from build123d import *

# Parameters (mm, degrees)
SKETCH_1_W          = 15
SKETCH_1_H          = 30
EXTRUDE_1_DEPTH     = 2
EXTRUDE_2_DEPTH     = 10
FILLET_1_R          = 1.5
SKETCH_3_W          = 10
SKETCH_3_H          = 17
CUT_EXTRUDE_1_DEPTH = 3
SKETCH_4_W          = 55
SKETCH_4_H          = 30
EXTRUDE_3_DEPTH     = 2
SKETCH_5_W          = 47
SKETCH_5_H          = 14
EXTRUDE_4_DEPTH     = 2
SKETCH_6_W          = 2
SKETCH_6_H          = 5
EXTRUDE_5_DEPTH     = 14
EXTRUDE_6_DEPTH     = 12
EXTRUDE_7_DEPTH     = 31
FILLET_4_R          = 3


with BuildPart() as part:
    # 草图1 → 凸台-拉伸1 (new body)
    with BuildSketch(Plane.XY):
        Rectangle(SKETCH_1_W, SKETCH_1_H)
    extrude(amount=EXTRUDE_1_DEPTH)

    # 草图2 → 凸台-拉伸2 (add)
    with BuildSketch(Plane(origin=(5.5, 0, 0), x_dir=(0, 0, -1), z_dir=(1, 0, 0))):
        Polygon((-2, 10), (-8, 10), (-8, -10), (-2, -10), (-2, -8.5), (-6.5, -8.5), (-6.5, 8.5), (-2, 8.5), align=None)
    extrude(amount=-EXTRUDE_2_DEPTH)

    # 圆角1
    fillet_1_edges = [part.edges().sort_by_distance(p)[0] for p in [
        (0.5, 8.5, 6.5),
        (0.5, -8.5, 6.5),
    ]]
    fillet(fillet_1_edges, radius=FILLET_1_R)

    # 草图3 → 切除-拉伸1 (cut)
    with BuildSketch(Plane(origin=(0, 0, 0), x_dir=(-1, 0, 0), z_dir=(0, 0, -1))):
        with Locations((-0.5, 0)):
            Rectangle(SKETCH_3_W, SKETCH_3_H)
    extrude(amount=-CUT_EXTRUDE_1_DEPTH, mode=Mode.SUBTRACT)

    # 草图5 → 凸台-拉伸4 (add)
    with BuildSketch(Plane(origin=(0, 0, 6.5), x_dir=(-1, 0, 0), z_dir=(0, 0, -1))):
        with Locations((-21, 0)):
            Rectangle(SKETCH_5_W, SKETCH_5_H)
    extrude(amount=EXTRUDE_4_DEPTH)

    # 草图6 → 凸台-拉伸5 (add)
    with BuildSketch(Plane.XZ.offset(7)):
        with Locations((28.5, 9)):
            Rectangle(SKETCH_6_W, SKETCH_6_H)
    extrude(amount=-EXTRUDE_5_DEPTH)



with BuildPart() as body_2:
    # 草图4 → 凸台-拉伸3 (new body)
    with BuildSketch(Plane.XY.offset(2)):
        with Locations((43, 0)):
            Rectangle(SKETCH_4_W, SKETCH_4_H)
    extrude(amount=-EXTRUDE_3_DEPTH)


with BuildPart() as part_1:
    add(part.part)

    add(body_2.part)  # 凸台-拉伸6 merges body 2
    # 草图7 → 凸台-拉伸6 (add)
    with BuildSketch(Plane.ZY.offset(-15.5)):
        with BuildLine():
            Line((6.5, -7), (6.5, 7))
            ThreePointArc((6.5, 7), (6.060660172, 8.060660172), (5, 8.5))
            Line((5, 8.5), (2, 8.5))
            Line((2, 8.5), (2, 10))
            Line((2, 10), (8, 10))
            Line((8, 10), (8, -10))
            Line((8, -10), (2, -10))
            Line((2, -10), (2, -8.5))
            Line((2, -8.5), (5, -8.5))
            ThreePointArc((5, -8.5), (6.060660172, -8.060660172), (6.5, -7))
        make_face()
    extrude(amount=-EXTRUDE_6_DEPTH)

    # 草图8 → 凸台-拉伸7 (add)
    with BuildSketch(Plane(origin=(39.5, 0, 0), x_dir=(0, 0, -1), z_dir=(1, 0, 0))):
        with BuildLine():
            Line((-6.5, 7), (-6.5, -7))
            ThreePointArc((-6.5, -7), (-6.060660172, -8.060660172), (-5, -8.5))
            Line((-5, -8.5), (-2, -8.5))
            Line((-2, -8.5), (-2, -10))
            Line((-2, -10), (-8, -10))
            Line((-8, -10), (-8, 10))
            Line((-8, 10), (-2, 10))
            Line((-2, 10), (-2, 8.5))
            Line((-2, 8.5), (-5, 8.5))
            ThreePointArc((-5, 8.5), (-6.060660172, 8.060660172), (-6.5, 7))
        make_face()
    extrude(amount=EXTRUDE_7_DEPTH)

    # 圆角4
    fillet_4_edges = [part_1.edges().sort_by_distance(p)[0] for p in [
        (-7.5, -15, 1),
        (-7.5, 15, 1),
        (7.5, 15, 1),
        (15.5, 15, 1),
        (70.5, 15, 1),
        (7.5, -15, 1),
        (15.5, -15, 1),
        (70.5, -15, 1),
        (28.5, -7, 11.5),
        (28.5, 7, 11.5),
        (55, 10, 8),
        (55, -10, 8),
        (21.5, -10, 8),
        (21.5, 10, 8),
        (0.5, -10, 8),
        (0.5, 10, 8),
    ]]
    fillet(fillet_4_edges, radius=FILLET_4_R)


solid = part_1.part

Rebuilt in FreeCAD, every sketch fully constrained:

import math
import FreeCAD as App
import Part
import Sketcher
from FreeCAD import Vector
Q = App.Units.Quantity


def edges_at(feature, points):
    """Names of the edges that pass closest to the given points."""
    edges = feature.Shape.Edges
    near = lambda p: min(range(len(edges)), key=lambda i: edges[i].distToShape(Part.Vertex(*p))[0])
    return sorted({f"Edge{near(p) + 1}" for p in points})

doc = App.newDocument("Part")
params = doc.addObject("Spreadsheet::Sheet", "Params")
for row, (alias, value) in enumerate([
    ("sketch1_width", "15 mm"),
    ("sketch1_height", "30 mm"),
    ("pad1_length", "2 mm"),
    ("sketch2_width", "20 mm"),
    ("sketch2_width2", "17 mm"),
    ("sketch2_height", "6 mm"),
    ("sketch2_height2", "4.5 mm"),
    ("pad2_length", "10 mm"),
    ("fillet_radius", "1.5 mm"),
    ("sketch3_width", "10 mm"),
    ("sketch3_height", "17 mm"),
    ("pocket1_length", "3 mm"),
    ("sketch4_width", "47 mm"),
    ("sketch4_height", "14 mm"),
    ("pad3_length", "2 mm"),
    ("sketch5_width", "2 mm"),
    ("sketch5_height", "5 mm"),
    ("pad4_length", "14 mm"),
    ("sketch6_width", "55 mm"),
    ("sketch6_height", "30 mm"),
    ("pad5_length", "2 mm"),
    ("sketch7_radius", "1.5 mm"),
    ("sketch7_width", "14 mm"),
    ("sketch7_width2", "20 mm"),
    ("sketch7_height", "3 mm"),
    ("sketch7_height2", "6 mm"),
    ("pad6_length", "12 mm"),
    ("sketch8_radius", "1.5 mm"),
    ("sketch8_width", "14 mm"),
    ("sketch8_width2", "20 mm"),
    ("sketch8_height", "3 mm"),
    ("sketch8_height2", "6 mm"),
    ("pad7_length", "31 mm"),
    ("fillet2_radius", "3 mm"),
], start=1):
    params.set(f"A{row}", alias)
    params.set(f"B{row}", "=" + value)
    params.setAlias(f"B{row}", alias)

body = doc.addObject("PartDesign::Body", "Body")

# Sketch on XY plane
sketch1 = body.newObject("Sketcher::SketchObject", "Sketch")
sketch1.AttachmentSupport = (doc.getObject("XY_Plane"), [""])
sketch1.MapMode = "FlatFace"
sketch1.addGeometry([
    Part.LineSegment(Vector(-7.5, 15, 0), Vector(-7.5, -15, 0)),
    Part.LineSegment(Vector(-7.5, -15, 0), Vector(7.5, -15, 0)),
    Part.LineSegment(Vector(7.5, -15, 0), Vector(7.5, 15, 0)),
    Part.LineSegment(Vector(7.5, 15, 0), Vector(-7.5, 15, 0)),
], False)
sketch1.addConstraint([
    Sketcher.Constraint("Coincident", 0, 2, 1, 1),
    Sketcher.Constraint("Coincident", 1, 2, 2, 1),
    Sketcher.Constraint("Coincident", 2, 2, 3, 1),
    Sketcher.Constraint("Coincident", 3, 2, 0, 1),
    Sketcher.Constraint("Vertical", 0),
    Sketcher.Constraint("Horizontal", 1),
    Sketcher.Constraint("Vertical", 2),
    Sketcher.Constraint("Horizontal", 3),
    Sketcher.Constraint("Symmetric", 0, 2, 2, 2, -1, 1),
    Sketcher.Constraint("DistanceX", 1, 1, 1, 2, Q("15 mm")),
    Sketcher.Constraint("DistanceY", 0, 2, 0, 1, Q("30 mm")),
])
sketch1.setExpression("Constraints[9]", "Params.sketch1_width")
sketch1.setExpression("Constraints[10]", "Params.sketch1_height")
pad1 = body.newObject("PartDesign::Pad", "Pad")
pad1.Profile = sketch1
pad1.setExpression("Length", "Params.pad1_length")

# Sketch on YZ plane
sketch2 = body.newObject("Sketcher::SketchObject", "Sketch001")
sketch2.AttachmentSupport = (doc.getObject("YZ_Plane"), [""])
sketch2.MapMode = "FlatFace"
sketch2.AttachmentOffset = App.Placement(Vector(0, 0, 5.5), App.Rotation())
sketch2.addGeometry([
    Part.LineSegment(Vector(10, 2, 0), Vector(10, 8, 0)),  # 0
    Part.LineSegment(Vector(10, 8, 0), Vector(-10, 8, 0)),  # 1
    Part.LineSegment(Vector(-10, 8, 0), Vector(-10, 2, 0)),  # 2
    Part.LineSegment(Vector(-10, 2, 0), Vector(-8.5, 2, 0)),  # 3
    Part.LineSegment(Vector(-8.5, 2, 0), Vector(-8.5, 6.5, 0)),  # 4
    Part.LineSegment(Vector(-8.5, 6.5, 0), Vector(8.5, 6.5, 0)),  # 5
    Part.LineSegment(Vector(8.5, 6.5, 0), Vector(8.5, 2, 0)),  # 6
    Part.LineSegment(Vector(8.5, 2, 0), Vector(10, 2, 0)),  # 7
], False)
sketch2.addConstraint([
    Sketcher.Constraint("Coincident", 0, 2, 1, 1),
    Sketcher.Constraint("Coincident", 1, 2, 2, 1),
    Sketcher.Constraint("Coincident", 2, 2, 3, 1),
    Sketcher.Constraint("Coincident", 3, 2, 4, 1),
    Sketcher.Constraint("Coincident", 4, 2, 5, 1),
    Sketcher.Constraint("Coincident", 5, 2, 6, 1),
    Sketcher.Constraint("Coincident", 6, 2, 7, 1),
    Sketcher.Constraint("Coincident", 7, 2, 0, 1),
    Sketcher.Constraint("Vertical", 0),
    Sketcher.Constraint("Horizontal", 1),
    Sketcher.Constraint("Vertical", 2),
    Sketcher.Constraint("Horizontal", 3),
    Sketcher.Constraint("Vertical", 4),
    Sketcher.Constraint("Horizontal", 5),
    Sketcher.Constraint("Vertical", 6),
    Sketcher.Constraint("Horizontal", 7),
    Sketcher.Constraint("Symmetric", 3, 2, 6, 2, -2),
    Sketcher.Constraint("Equal", 3, 7),
    Sketcher.Constraint("DistanceX", 1, 2, 1, 1, Q("20 mm")),
    Sketcher.Constraint("DistanceX", 5, 1, 5, 2, Q("17 mm")),
    Sketcher.Constraint("DistanceY", 0, 1, 0, 2, Q("6 mm")),
    Sketcher.Constraint("DistanceY", 4, 1, 4, 2, Q("4.5 mm")),
    Sketcher.Constraint("DistanceY", -1, 1, 0, 2, Q("8 mm")),
])
sketch2.setExpression("Constraints[18]", "Params.sketch2_width")
sketch2.setExpression("Constraints[19]", "Params.sketch2_width2")
sketch2.setExpression("Constraints[20]", "Params.sketch2_height")
sketch2.setExpression("Constraints[21]", "Params.sketch2_height2")
pad2 = body.newObject("PartDesign::Pad", "Pad001")
pad2.Profile = sketch2
pad2.setExpression("Length", "Params.pad2_length")
pad2.Reversed = True
doc.recompute()

fillet = body.newObject("PartDesign::Fillet", "Fillet")
fillet.Base = (pad2, edges_at(pad2, [(0.5, 8.5, 6.5), (0.5, -8.5, 6.5)]))
fillet.setExpression("Radius", "Params.fillet_radius")

# Sketch on XY plane
sketch3 = body.newObject("Sketcher::SketchObject", "Sketch002")
sketch3.AttachmentSupport = (doc.getObject("XY_Plane"), [""])
sketch3.MapMode = "FlatFace"
sketch3.addGeometry([
    Part.LineSegment(Vector(5.5, 8.5, 0), Vector(5.5, -8.5, 0)),
    Part.LineSegment(Vector(5.5, -8.5, 0), Vector(-4.5, -8.5, 0)),
    Part.LineSegment(Vector(-4.5, -8.5, 0), Vector(-4.5, 8.5, 0)),
    Part.LineSegment(Vector(-4.5, 8.5, 0), Vector(5.5, 8.5, 0)),
], False)
sketch3.addConstraint([
    Sketcher.Constraint("Coincident", 0, 2, 1, 1),
    Sketcher.Constraint("Coincident", 1, 2, 2, 1),
    Sketcher.Constraint("Coincident", 2, 2, 3, 1),
    Sketcher.Constraint("Coincident", 3, 2, 0, 1),
    Sketcher.Constraint("Vertical", 0),
    Sketcher.Constraint("Horizontal", 1),
    Sketcher.Constraint("Vertical", 2),
    Sketcher.Constraint("Horizontal", 3),
    Sketcher.Constraint("DistanceX", 1, 2, 1, 1, Q("10 mm")),
    Sketcher.Constraint("DistanceY", 0, 2, 0, 1, Q("17 mm")),
    Sketcher.Constraint("DistanceX", -1, 1, 0, 2, Q("5.5 mm")),
    Sketcher.Constraint("DistanceY", 0, 2, -1, 1, Q("8.5 mm")),
])
sketch3.setExpression("Constraints[8]", "Params.sketch3_width")
sketch3.setExpression("Constraints[9]", "Params.sketch3_height")
pocket1 = body.newObject("PartDesign::Pocket", "Pocket")
pocket1.Profile = sketch3
pocket1.setExpression("Length", "Params.pocket1_length")
pocket1.Reversed = True

# Sketch on XY plane
sketch4 = body.newObject("Sketcher::SketchObject", "Sketch003")
sketch4.AttachmentSupport = (doc.getObject("XY_Plane"), [""])
sketch4.MapMode = "FlatFace"
sketch4.AttachmentOffset = App.Placement(Vector(0, 0, 6.5), App.Rotation())
sketch4.addGeometry([
    Part.LineSegment(Vector(44.5, 7, 0), Vector(44.5, -7, 0)),
    Part.LineSegment(Vector(44.5, -7, 0), Vector(-2.5, -7, 0)),
    Part.LineSegment(Vector(-2.5, -7, 0), Vector(-2.5, 7, 0)),
    Part.LineSegment(Vector(-2.5, 7, 0), Vector(44.5, 7, 0)),
], False)
sketch4.addConstraint([
    Sketcher.Constraint("Coincident", 0, 2, 1, 1),
    Sketcher.Constraint("Coincident", 1, 2, 2, 1),
    Sketcher.Constraint("Coincident", 2, 2, 3, 1),
    Sketcher.Constraint("Coincident", 3, 2, 0, 1),
    Sketcher.Constraint("Vertical", 0),
    Sketcher.Constraint("Horizontal", 1),
    Sketcher.Constraint("Vertical", 2),
    Sketcher.Constraint("Horizontal", 3),
    Sketcher.Constraint("DistanceX", 1, 2, 1, 1, Q("47 mm")),
    Sketcher.Constraint("DistanceY", 0, 2, 0, 1, Q("14 mm")),
    Sketcher.Constraint("DistanceY", 0, 2, -1, 1, Q("7 mm")),
    Sketcher.Constraint("DistanceX", -1, 1, 0, 2, Q("44.5 mm")),
])
sketch4.setExpression("Constraints[8]", "Params.sketch4_width")
sketch4.setExpression("Constraints[9]", "Params.sketch4_height")
pad3 = body.newObject("PartDesign::Pad", "Pad002")
pad3.Profile = sketch4
pad3.setExpression("Length", "Params.pad3_length")
pad3.Reversed = True

# Sketch on XZ plane
sketch5 = body.newObject("Sketcher::SketchObject", "Sketch004")
sketch5.AttachmentSupport = (doc.getObject("XZ_Plane"), [""])
sketch5.MapMode = "FlatFace"
sketch5.AttachmentOffset = App.Placement(Vector(0, 0, 7), App.Rotation())
sketch5.addGeometry([
    Part.LineSegment(Vector(27.5, 11.5, 0), Vector(27.5, 6.5, 0)),
    Part.LineSegment(Vector(27.5, 6.5, 0), Vector(29.5, 6.5, 0)),
    Part.LineSegment(Vector(29.5, 6.5, 0), Vector(29.5, 11.5, 0)),
    Part.LineSegment(Vector(29.5, 11.5, 0), Vector(27.5, 11.5, 0)),
], False)
sketch5.addConstraint([
    Sketcher.Constraint("Coincident", 0, 2, 1, 1),
    Sketcher.Constraint("Coincident", 1, 2, 2, 1),
    Sketcher.Constraint("Coincident", 2, 2, 3, 1),
    Sketcher.Constraint("Coincident", 3, 2, 0, 1),
    Sketcher.Constraint("Vertical", 0),
    Sketcher.Constraint("Horizontal", 1),
    Sketcher.Constraint("Vertical", 2),
    Sketcher.Constraint("Horizontal", 3),
    Sketcher.Constraint("DistanceX", 1, 1, 1, 2, Q("2 mm")),
    Sketcher.Constraint("DistanceY", 0, 2, 0, 1, Q("5 mm")),
    Sketcher.Constraint("DistanceX", -1, 1, 0, 2, Q("27.5 mm")),
    Sketcher.Constraint("DistanceY", -1, 1, 0, 2, Q("6.5 mm")),
])
sketch5.setExpression("Constraints[8]", "Params.sketch5_width")
sketch5.setExpression("Constraints[9]", "Params.sketch5_height")
pad4 = body.newObject("PartDesign::Pad", "Pad003")
pad4.Profile = sketch5
pad4.setExpression("Length", "Params.pad4_length")
pad4.Reversed = True
body2 = doc.addObject("PartDesign::Body", "Body001")

# Sketch on XY plane
sketch6 = body2.newObject("Sketcher::SketchObject", "Sketch005")
sketch6.AttachmentSupport = (doc.getObject("XY_Plane001"), [""])
sketch6.MapMode = "FlatFace"
sketch6.AttachmentOffset = App.Placement(Vector(0, 0, 2), App.Rotation())
sketch6.addGeometry([
    Part.LineSegment(Vector(15.5, 15, 0), Vector(15.5, -15, 0)),
    Part.LineSegment(Vector(15.5, -15, 0), Vector(70.5, -15, 0)),
    Part.LineSegment(Vector(70.5, -15, 0), Vector(70.5, 15, 0)),
    Part.LineSegment(Vector(70.5, 15, 0), Vector(15.5, 15, 0)),
], False)
sketch6.addConstraint([
    Sketcher.Constraint("Coincident", 0, 2, 1, 1),
    Sketcher.Constraint("Coincident", 1, 2, 2, 1),
    Sketcher.Constraint("Coincident", 2, 2, 3, 1),
    Sketcher.Constraint("Coincident", 3, 2, 0, 1),
    Sketcher.Constraint("Vertical", 0),
    Sketcher.Constraint("Horizontal", 1),
    Sketcher.Constraint("Vertical", 2),
    Sketcher.Constraint("Horizontal", 3),
    Sketcher.Constraint("DistanceX", 1, 1, 1, 2, Q("55 mm")),
    Sketcher.Constraint("DistanceY", 0, 2, 0, 1, Q("30 mm")),
    Sketcher.Constraint("DistanceY", 0, 2, -1, 1, Q("15 mm")),
    Sketcher.Constraint("DistanceX", -1, 1, 0, 2, Q("15.5 mm")),
])
sketch6.setExpression("Constraints[8]", "Params.sketch6_width")
sketch6.setExpression("Constraints[9]", "Params.sketch6_height")
pad5 = body2.newObject("PartDesign::Pad", "Pad004")
pad5.Profile = sketch6
pad5.setExpression("Length", "Params.pad5_length")
pad5.Reversed = True
body.AllowCompound = True
doc.recompute()

boolean = body.newObject("PartDesign::Boolean", "Boolean")
boolean.Type = "Fuse"
boolean.addObjects([body2])

# Sketch on YZ plane
sketch7 = body.newObject("Sketcher::SketchObject", "Sketch006")
sketch7.AttachmentSupport = (doc.getObject("YZ_Plane"), [""])
sketch7.MapMode = "FlatFace"
sketch7.AttachmentOffset = App.Placement(Vector(0, 0, 15.5), App.Rotation())
sketch7.addGeometry([
    Part.LineSegment(Vector(7, 6.5, 0), Vector(-7, 6.5, 0)),  # 0
    Part.ArcOfCircle(Part.Circle(Vector(-7, 5, 0), Vector(0, 0, 1), 1.5), math.radians(90), math.radians(180)),  # 1
    Part.LineSegment(Vector(-8.5, 5, 0), Vector(-8.5, 2, 0)),  # 2
    Part.LineSegment(Vector(-8.5, 2, 0), Vector(-10, 2, 0)),  # 3
    Part.LineSegment(Vector(-10, 2, 0), Vector(-10, 8, 0)),  # 4
    Part.LineSegment(Vector(-10, 8, 0), Vector(10, 8, 0)),  # 5
    Part.LineSegment(Vector(10, 8, 0), Vector(10, 2, 0)),  # 6
    Part.LineSegment(Vector(10, 2, 0), Vector(8.5, 2, 0)),  # 7
    Part.LineSegment(Vector(8.5, 2, 0), Vector(8.5, 5, 0)),  # 8
    Part.ArcOfCircle(Part.Circle(Vector(7, 5, 0), Vector(0, 0, 1), 1.5), math.radians(0), math.radians(90)),  # 9
], False)
sketch7.addConstraint([
    Sketcher.Constraint("Tangent", 0, 2, 1, 1),
    Sketcher.Constraint("Tangent", 1, 2, 2, 1),
    Sketcher.Constraint("Coincident", 2, 2, 3, 1),
    Sketcher.Constraint("Coincident", 3, 2, 4, 1),
    Sketcher.Constraint("Coincident", 4, 2, 5, 1),
    Sketcher.Constraint("Coincident", 5, 2, 6, 1),
    Sketcher.Constraint("Coincident", 6, 2, 7, 1),
    Sketcher.Constraint("Coincident", 7, 2, 8, 1),
    Sketcher.Constraint("Tangent", 8, 2, 9, 1),
    Sketcher.Constraint("Tangent", 9, 2, 0, 1),
    Sketcher.Constraint("Horizontal", 0),
    Sketcher.Constraint("Vertical", 2),
    Sketcher.Constraint("Horizontal", 3),
    Sketcher.Constraint("Vertical", 4),
    Sketcher.Constraint("Horizontal", 5),
    Sketcher.Constraint("Vertical", 6),
    Sketcher.Constraint("Horizontal", 7),
    Sketcher.Constraint("Vertical", 8),
    Sketcher.Constraint("Equal", 1, 9),
    Sketcher.Constraint("Symmetric", 3, 2, 6, 2, -2),
    Sketcher.Constraint("Equal", 3, 7),
    Sketcher.Constraint("Radius", 1, Q("1.5 mm")),
    Sketcher.Constraint("DistanceX", 0, 2, 0, 1, Q("14 mm")),
    Sketcher.Constraint("DistanceX", 5, 1, 5, 2, Q("20 mm")),
    Sketcher.Constraint("DistanceY", 2, 2, 2, 1, Q("3 mm")),
    Sketcher.Constraint("DistanceY", 4, 1, 4, 2, Q("6 mm")),
    Sketcher.Constraint("DistanceY", -1, 1, 1, 3, Q("5 mm")),
])
sketch7.setExpression("Constraints[21]", "Params.sketch7_radius")
sketch7.setExpression("Constraints[22]", "Params.sketch7_width")
sketch7.setExpression("Constraints[23]", "Params.sketch7_width2")
sketch7.setExpression("Constraints[24]", "Params.sketch7_height")
sketch7.setExpression("Constraints[25]", "Params.sketch7_height2")
pad6 = body.newObject("PartDesign::Pad", "Pad005")
pad6.Profile = sketch7
pad6.setExpression("Length", "Params.pad6_length")

# Sketch on YZ plane
sketch8 = body.newObject("Sketcher::SketchObject", "Sketch007")
sketch8.AttachmentSupport = (doc.getObject("YZ_Plane"), [""])
sketch8.MapMode = "FlatFace"
sketch8.AttachmentOffset = App.Placement(Vector(0, 0, 39.5), App.Rotation())
sketch8.addGeometry([
    Part.LineSegment(Vector(-7, 6.5, 0), Vector(7, 6.5, 0)),  # 0
    Part.ArcOfCircle(Part.Circle(Vector(7, 5, 0), Vector(0, 0, 1), 1.5), math.radians(0), math.radians(90)),  # 1
    Part.LineSegment(Vector(8.5, 5, 0), Vector(8.5, 2, 0)),  # 2
    Part.LineSegment(Vector(8.5, 2, 0), Vector(10, 2, 0)),  # 3
    Part.LineSegment(Vector(10, 2, 0), Vector(10, 8, 0)),  # 4
    Part.LineSegment(Vector(10, 8, 0), Vector(-10, 8, 0)),  # 5
    Part.LineSegment(Vector(-10, 8, 0), Vector(-10, 2, 0)),  # 6
    Part.LineSegment(Vector(-10, 2, 0), Vector(-8.5, 2, 0)),  # 7
    Part.LineSegment(Vector(-8.5, 2, 0), Vector(-8.5, 5, 0)),  # 8
    Part.ArcOfCircle(Part.Circle(Vector(-7, 5, 0), Vector(0, 0, 1), 1.5), math.radians(90), math.radians(180)),  # 9
], False)
sketch8.addConstraint([
    Sketcher.Constraint("Tangent", 0, 2, 1, 2),
    Sketcher.Constraint("Tangent", 1, 1, 2, 1),
    Sketcher.Constraint("Coincident", 2, 2, 3, 1),
    Sketcher.Constraint("Coincident", 3, 2, 4, 1),
    Sketcher.Constraint("Coincident", 4, 2, 5, 1),
    Sketcher.Constraint("Coincident", 5, 2, 6, 1),
    Sketcher.Constraint("Coincident", 6, 2, 7, 1),
    Sketcher.Constraint("Coincident", 7, 2, 8, 1),
    Sketcher.Constraint("Tangent", 8, 2, 9, 2),
    Sketcher.Constraint("Tangent", 9, 1, 0, 1),
    Sketcher.Constraint("Horizontal", 0),
    Sketcher.Constraint("Vertical", 2),
    Sketcher.Constraint("Horizontal", 3),
    Sketcher.Constraint("Vertical", 4),
    Sketcher.Constraint("Horizontal", 5),
    Sketcher.Constraint("Vertical", 6),
    Sketcher.Constraint("Horizontal", 7),
    Sketcher.Constraint("Vertical", 8),
    Sketcher.Constraint("Equal", 1, 9),
    Sketcher.Constraint("Symmetric", 3, 2, 6, 2, -2),
    Sketcher.Constraint("Equal", 3, 7),
    Sketcher.Constraint("Radius", 1, Q("1.5 mm")),
    Sketcher.Constraint("DistanceX", 0, 1, 0, 2, Q("14 mm")),
    Sketcher.Constraint("DistanceX", 5, 2, 5, 1, Q("20 mm")),
    Sketcher.Constraint("DistanceY", 2, 2, 2, 1, Q("3 mm")),
    Sketcher.Constraint("DistanceY", 4, 1, 4, 2, Q("6 mm")),
    Sketcher.Constraint("DistanceY", -1, 1, 1, 3, Q("5 mm")),
])
sketch8.setExpression("Constraints[21]", "Params.sketch8_radius")
sketch8.setExpression("Constraints[22]", "Params.sketch8_width")
sketch8.setExpression("Constraints[23]", "Params.sketch8_width2")
sketch8.setExpression("Constraints[24]", "Params.sketch8_height")
sketch8.setExpression("Constraints[25]", "Params.sketch8_height2")
pad7 = body.newObject("PartDesign::Pad", "Pad006")
pad7.Profile = sketch8
pad7.setExpression("Length", "Params.pad7_length")
doc.recompute()

fillet2 = body.newObject("PartDesign::Fillet", "Fillet001")
fillet2.Base = (pad7, edges_at(pad7, [
    (-7.5, -15, 1),
    (-7.5, 15, 1),
    (7.5, 15, 1),
    (15.5, 15, 1),
    (70.5, 15, 1),
    (7.5, -15, 1),
    (15.5, -15, 1),
    (70.5, -15, 1),
    (28.5, -7, 11.5),
    (28.5, 7, 11.5),
    (55, 10, 8),
    (55, -10, 8),
    (21.5, -10, 8),
    (21.5, 10, 8),
    (0.5, -10, 8),
    (0.5, 10, 8),
]))
fillet2.setExpression("Radius", "Params.fillet2_radius")

doc.recompute()
